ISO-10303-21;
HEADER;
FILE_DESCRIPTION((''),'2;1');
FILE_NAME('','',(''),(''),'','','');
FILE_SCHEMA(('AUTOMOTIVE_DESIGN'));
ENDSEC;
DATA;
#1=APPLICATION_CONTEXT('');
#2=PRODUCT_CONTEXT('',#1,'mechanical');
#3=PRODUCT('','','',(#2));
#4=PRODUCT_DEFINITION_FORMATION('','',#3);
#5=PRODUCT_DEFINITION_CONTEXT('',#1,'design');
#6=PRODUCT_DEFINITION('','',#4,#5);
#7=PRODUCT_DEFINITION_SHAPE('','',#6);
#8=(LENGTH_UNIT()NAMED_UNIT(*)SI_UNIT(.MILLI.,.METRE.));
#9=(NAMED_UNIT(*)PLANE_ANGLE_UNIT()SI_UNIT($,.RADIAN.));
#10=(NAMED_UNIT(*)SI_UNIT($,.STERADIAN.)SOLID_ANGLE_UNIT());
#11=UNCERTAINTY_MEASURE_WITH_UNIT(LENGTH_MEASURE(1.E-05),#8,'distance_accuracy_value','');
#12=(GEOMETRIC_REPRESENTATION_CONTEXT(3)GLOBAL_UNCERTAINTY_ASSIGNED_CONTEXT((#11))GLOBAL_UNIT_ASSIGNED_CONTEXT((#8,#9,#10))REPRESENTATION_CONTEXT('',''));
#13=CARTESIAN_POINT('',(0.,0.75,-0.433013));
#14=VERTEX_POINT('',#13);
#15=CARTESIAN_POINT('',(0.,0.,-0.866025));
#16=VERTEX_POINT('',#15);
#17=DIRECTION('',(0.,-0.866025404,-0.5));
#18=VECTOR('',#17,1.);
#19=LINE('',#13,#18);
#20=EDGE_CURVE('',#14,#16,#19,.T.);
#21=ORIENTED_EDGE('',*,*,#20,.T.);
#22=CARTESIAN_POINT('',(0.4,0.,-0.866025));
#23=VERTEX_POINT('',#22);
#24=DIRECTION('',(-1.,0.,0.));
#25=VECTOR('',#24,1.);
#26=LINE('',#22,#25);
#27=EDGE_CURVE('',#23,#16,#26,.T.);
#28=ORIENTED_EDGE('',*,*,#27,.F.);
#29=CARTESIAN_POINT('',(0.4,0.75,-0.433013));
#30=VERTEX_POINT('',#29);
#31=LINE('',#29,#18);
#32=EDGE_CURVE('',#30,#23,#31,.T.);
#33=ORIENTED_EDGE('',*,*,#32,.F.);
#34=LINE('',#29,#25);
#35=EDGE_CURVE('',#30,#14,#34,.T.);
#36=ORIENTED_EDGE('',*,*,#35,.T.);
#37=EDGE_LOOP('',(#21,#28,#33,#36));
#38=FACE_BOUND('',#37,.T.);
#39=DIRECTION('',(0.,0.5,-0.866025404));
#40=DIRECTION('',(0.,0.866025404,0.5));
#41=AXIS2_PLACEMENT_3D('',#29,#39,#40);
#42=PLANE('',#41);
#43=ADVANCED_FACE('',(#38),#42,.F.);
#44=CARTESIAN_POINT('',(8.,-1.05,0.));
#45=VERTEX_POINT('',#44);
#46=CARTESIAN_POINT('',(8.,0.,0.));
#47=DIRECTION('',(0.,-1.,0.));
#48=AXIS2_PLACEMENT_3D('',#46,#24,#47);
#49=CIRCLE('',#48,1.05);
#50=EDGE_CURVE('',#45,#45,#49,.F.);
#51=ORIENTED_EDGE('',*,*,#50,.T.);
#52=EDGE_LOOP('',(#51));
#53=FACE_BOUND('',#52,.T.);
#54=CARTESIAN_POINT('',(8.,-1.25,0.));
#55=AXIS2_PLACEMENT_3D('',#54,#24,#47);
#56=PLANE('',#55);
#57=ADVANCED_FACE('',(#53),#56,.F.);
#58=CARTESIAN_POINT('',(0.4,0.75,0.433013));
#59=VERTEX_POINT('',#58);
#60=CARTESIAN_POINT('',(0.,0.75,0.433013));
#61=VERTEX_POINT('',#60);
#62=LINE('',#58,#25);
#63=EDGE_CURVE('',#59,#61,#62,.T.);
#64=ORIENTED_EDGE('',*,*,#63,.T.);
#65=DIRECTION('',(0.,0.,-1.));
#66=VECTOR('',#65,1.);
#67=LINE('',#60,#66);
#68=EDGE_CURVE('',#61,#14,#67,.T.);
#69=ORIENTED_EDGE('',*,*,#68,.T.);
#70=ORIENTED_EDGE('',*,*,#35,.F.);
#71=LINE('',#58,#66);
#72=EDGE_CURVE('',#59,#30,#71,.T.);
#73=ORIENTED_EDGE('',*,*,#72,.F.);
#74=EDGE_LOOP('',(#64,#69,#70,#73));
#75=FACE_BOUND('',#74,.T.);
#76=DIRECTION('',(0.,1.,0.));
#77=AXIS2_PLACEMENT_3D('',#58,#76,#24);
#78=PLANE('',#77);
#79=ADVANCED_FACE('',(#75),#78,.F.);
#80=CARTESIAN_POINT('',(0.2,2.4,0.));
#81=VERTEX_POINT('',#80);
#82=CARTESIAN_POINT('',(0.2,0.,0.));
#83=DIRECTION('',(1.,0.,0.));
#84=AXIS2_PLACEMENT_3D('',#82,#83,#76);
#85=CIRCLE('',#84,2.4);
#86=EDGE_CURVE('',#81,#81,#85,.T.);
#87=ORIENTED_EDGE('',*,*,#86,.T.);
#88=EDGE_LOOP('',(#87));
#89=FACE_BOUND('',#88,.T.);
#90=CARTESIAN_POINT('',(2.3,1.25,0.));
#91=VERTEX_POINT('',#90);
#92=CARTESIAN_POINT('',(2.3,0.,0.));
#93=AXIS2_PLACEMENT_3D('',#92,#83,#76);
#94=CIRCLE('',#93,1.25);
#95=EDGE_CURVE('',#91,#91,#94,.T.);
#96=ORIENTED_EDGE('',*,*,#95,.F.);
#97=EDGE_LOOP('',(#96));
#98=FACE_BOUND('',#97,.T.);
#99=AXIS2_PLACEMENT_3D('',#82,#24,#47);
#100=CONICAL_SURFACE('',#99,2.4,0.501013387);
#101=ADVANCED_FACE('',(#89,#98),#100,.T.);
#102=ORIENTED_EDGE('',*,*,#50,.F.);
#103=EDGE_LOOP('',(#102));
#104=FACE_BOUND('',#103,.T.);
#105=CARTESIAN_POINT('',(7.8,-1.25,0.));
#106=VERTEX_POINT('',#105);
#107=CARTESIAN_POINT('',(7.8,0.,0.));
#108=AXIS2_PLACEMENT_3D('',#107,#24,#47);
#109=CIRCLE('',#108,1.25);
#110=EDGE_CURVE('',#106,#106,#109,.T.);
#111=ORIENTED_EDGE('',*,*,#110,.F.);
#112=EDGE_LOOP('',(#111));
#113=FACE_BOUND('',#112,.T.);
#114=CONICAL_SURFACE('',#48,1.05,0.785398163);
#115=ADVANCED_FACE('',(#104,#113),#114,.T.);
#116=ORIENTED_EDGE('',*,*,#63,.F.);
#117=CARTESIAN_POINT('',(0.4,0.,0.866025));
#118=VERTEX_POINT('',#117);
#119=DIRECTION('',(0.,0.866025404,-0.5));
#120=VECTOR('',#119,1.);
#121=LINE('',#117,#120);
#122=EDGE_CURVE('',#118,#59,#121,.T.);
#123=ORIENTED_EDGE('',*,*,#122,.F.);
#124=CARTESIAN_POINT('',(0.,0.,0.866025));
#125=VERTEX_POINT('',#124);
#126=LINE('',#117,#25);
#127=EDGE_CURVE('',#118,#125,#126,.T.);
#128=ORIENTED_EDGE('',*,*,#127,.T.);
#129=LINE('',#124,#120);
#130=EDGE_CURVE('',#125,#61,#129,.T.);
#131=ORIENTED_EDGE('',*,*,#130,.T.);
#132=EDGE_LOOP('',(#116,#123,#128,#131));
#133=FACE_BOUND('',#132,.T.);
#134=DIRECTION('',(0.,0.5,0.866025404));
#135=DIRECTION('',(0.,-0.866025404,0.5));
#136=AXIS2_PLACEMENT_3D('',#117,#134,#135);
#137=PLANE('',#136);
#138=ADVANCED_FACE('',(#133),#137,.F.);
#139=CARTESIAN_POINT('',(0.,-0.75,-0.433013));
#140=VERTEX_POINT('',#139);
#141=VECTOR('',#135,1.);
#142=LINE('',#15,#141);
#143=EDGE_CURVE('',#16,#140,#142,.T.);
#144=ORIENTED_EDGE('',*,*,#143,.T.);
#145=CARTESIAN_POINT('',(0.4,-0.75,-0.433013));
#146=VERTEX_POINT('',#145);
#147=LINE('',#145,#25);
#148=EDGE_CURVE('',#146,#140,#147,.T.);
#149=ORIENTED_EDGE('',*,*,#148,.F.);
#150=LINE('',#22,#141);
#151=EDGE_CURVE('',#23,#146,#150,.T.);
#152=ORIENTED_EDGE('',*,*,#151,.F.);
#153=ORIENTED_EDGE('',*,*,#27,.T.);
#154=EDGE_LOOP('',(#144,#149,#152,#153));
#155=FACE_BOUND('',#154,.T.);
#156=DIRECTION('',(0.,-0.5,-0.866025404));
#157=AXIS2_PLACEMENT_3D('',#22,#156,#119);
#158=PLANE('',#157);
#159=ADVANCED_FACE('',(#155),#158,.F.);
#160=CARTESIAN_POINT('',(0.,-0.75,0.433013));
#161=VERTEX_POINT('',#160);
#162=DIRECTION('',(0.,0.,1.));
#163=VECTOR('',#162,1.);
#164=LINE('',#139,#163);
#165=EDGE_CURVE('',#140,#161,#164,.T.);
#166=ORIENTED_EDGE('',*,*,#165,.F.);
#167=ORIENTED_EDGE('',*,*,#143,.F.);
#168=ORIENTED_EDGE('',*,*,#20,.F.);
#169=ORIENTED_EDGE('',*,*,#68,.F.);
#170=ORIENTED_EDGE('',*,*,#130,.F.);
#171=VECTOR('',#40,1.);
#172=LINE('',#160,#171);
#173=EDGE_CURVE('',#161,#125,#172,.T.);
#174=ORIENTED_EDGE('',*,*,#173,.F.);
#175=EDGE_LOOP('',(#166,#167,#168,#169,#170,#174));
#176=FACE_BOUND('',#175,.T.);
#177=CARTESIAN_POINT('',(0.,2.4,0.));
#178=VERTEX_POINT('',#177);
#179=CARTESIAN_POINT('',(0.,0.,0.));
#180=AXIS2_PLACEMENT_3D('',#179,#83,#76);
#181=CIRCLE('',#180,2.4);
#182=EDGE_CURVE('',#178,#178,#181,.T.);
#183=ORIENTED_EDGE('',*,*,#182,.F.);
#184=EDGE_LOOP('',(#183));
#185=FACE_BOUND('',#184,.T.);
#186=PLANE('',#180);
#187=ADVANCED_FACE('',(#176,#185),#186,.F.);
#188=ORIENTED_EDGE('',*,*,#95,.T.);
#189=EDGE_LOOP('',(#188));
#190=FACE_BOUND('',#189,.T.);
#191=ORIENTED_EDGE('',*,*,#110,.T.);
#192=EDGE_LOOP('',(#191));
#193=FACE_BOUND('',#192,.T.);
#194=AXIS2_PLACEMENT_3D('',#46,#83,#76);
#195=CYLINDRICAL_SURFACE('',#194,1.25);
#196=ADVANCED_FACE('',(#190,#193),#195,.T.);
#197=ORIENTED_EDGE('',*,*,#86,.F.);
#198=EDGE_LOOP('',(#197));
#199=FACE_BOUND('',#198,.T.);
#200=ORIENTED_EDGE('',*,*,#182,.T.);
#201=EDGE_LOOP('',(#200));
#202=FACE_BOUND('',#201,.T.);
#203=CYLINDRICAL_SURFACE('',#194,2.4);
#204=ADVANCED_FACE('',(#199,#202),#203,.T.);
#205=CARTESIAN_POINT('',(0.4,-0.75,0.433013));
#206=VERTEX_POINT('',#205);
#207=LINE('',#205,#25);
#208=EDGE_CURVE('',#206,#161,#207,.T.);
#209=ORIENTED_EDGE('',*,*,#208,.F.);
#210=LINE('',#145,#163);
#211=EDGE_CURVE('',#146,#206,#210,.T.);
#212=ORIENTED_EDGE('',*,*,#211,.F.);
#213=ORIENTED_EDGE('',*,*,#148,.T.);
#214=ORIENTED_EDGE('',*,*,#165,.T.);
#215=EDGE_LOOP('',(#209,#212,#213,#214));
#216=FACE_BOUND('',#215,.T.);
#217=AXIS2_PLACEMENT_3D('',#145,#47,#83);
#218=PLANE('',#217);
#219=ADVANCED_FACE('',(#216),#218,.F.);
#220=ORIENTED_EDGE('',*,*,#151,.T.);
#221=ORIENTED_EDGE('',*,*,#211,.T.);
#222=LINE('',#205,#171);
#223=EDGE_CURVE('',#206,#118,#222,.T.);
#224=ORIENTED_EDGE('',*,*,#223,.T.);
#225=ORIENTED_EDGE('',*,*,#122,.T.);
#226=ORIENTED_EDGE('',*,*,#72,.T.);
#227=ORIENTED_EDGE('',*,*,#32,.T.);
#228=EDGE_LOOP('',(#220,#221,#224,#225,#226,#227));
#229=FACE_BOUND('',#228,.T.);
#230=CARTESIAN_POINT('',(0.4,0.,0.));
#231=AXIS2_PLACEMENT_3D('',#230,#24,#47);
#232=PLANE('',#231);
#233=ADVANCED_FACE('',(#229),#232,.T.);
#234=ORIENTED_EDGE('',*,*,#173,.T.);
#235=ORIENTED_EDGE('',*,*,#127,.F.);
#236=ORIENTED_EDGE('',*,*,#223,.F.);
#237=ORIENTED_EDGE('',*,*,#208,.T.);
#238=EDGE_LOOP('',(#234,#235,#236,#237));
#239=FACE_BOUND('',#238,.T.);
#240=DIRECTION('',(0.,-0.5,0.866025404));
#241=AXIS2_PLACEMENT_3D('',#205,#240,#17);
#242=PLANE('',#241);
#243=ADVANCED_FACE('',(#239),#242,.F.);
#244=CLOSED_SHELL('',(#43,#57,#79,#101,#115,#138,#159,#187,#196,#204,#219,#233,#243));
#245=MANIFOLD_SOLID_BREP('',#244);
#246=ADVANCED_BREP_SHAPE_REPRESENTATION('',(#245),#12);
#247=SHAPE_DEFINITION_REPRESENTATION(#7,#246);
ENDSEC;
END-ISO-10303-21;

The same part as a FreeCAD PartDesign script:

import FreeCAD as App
import Part
import Sketcher

V = App.Vector
Q = App.Units.Quantity


def edges_at(feature, points):
    """Names of the edges that pass closest to the given points."""
    edges = feature.Shape.Edges
    near = lambda p: min(range(len(edges)), key=lambda i: edges[i].distToShape(Part.Vertex(*p))[0])
    return sorted({f"Edge{near(p) + 1}" for p in points})


def add_polygon(sketch, points):
    """Adds a closed chain of lines whose ends are joined by coincident constraints."""
    first, n = sketch.GeometryCount, len(points)
    for a, b in zip(points, points[1:] + points[:1]):
        sketch.addGeometry(Part.LineSegment(App.Vector(*a, 0), App.Vector(*b, 0)), False)
    for i in range(n):
        sketch.addConstraint(Sketcher.Constraint("Coincident", first + i, 2, first + (i + 1) % n, 1))

doc = App.newDocument("Part")
body = doc.addObject("PartDesign::Body", "Body")

sketch1 = doc.addObject("Sketcher::SketchObject", "Sketch")
body.addObject(sketch1)
sketch1.AttachmentSupport = (doc.XY_Plane, [""])
sketch1.MapMode = "FlatFace"
add_polygon(sketch1, [(0, 0), (0, -2.4), (0.2, -2.4), (2.3, -1.25), (8, -1.25), (8, 0)])
sketch1.addConstraint([
    Sketcher.Constraint("Vertical", 0),
    Sketcher.Constraint("Horizontal", 1),
    Sketcher.Constraint("Horizontal", 3),
    Sketcher.Constraint("Vertical", 4),
    Sketcher.Constraint("Horizontal", 5),
    Sketcher.Constraint("Coincident", 5, 2, -1, 1),
    Sketcher.Constraint("DistanceX", 5, 2, 5, 1, 8.0),
    Sketcher.Constraint("DistanceX", 1, 1, 1, 2, 0.2),
    Sketcher.Constraint("DistanceX", 3, 1, 3, 2, 5.7),
    Sketcher.Constraint("DistanceY", 0, 2, 0, 1, 2.4),
    Sketcher.Constraint("DistanceY", 4, 1, 4, 2, 1.25),
])
revolution = doc.addObject("PartDesign::Revolution", "Revolution")
body.addObject(revolution)
revolution.Profile = sketch1
revolution.ReferenceAxis = (sketch1, ["H_Axis"])
revolution.Angle = 360

sketch2 = doc.addObject("Sketcher::SketchObject", "Sketch001")
body.addObject(sketch2)
sketch2.AttachmentSupport = (doc.YZ_Plane, [""])
sketch2.MapMode = "FlatFace"
add_polygon(sketch2, [(0, 0.9), (0.8, 0.4), (0.8, -0.4), (0, -0.9), (-0.8, -0.4), (-0.8, 0.4)])
sketch2.addConstraint([
    Sketcher.Constraint("Vertical", 1),
    Sketcher.Constraint("Vertical", 4),
    Sketcher.Constraint("Symmetric", 0, 2, 3, 2, -1, 1),
    Sketcher.Constraint("Symmetric", 2, 2, 5, 2, -1, 1),
    Sketcher.Constraint("PointOnObject", 2, 2, -2),
    Sketcher.Constraint("Parallel", 2, 5),
    Sketcher.Constraint("Horizontal", 1, 2, 3, 2),
    Sketcher.Constraint("Angle", 0, Q("-30 deg")),
    Sketcher.Constraint("DistanceX", 3, 2, 1, 2, 1.5),
    Sketcher.Constraint("DistanceY", 1, 2, 1, 1, 0.866025),
])
pocket1 = doc.addObject("PartDesign::Pocket", "Pocket")
body.addObject(pocket1)
pocket1.Profile = sketch2
pocket1.Length = 0.4
pocket1.Reversed = True
doc.recompute()

chamfer = doc.addObject("PartDesign::Chamfer", "Chamfer")
body.addObject(chamfer)
chamfer.Base = (pocket1, edges_at(pocket1, [(8, -1.25, 0)]))
chamfer.Size = 0.2

doc.recompute()
